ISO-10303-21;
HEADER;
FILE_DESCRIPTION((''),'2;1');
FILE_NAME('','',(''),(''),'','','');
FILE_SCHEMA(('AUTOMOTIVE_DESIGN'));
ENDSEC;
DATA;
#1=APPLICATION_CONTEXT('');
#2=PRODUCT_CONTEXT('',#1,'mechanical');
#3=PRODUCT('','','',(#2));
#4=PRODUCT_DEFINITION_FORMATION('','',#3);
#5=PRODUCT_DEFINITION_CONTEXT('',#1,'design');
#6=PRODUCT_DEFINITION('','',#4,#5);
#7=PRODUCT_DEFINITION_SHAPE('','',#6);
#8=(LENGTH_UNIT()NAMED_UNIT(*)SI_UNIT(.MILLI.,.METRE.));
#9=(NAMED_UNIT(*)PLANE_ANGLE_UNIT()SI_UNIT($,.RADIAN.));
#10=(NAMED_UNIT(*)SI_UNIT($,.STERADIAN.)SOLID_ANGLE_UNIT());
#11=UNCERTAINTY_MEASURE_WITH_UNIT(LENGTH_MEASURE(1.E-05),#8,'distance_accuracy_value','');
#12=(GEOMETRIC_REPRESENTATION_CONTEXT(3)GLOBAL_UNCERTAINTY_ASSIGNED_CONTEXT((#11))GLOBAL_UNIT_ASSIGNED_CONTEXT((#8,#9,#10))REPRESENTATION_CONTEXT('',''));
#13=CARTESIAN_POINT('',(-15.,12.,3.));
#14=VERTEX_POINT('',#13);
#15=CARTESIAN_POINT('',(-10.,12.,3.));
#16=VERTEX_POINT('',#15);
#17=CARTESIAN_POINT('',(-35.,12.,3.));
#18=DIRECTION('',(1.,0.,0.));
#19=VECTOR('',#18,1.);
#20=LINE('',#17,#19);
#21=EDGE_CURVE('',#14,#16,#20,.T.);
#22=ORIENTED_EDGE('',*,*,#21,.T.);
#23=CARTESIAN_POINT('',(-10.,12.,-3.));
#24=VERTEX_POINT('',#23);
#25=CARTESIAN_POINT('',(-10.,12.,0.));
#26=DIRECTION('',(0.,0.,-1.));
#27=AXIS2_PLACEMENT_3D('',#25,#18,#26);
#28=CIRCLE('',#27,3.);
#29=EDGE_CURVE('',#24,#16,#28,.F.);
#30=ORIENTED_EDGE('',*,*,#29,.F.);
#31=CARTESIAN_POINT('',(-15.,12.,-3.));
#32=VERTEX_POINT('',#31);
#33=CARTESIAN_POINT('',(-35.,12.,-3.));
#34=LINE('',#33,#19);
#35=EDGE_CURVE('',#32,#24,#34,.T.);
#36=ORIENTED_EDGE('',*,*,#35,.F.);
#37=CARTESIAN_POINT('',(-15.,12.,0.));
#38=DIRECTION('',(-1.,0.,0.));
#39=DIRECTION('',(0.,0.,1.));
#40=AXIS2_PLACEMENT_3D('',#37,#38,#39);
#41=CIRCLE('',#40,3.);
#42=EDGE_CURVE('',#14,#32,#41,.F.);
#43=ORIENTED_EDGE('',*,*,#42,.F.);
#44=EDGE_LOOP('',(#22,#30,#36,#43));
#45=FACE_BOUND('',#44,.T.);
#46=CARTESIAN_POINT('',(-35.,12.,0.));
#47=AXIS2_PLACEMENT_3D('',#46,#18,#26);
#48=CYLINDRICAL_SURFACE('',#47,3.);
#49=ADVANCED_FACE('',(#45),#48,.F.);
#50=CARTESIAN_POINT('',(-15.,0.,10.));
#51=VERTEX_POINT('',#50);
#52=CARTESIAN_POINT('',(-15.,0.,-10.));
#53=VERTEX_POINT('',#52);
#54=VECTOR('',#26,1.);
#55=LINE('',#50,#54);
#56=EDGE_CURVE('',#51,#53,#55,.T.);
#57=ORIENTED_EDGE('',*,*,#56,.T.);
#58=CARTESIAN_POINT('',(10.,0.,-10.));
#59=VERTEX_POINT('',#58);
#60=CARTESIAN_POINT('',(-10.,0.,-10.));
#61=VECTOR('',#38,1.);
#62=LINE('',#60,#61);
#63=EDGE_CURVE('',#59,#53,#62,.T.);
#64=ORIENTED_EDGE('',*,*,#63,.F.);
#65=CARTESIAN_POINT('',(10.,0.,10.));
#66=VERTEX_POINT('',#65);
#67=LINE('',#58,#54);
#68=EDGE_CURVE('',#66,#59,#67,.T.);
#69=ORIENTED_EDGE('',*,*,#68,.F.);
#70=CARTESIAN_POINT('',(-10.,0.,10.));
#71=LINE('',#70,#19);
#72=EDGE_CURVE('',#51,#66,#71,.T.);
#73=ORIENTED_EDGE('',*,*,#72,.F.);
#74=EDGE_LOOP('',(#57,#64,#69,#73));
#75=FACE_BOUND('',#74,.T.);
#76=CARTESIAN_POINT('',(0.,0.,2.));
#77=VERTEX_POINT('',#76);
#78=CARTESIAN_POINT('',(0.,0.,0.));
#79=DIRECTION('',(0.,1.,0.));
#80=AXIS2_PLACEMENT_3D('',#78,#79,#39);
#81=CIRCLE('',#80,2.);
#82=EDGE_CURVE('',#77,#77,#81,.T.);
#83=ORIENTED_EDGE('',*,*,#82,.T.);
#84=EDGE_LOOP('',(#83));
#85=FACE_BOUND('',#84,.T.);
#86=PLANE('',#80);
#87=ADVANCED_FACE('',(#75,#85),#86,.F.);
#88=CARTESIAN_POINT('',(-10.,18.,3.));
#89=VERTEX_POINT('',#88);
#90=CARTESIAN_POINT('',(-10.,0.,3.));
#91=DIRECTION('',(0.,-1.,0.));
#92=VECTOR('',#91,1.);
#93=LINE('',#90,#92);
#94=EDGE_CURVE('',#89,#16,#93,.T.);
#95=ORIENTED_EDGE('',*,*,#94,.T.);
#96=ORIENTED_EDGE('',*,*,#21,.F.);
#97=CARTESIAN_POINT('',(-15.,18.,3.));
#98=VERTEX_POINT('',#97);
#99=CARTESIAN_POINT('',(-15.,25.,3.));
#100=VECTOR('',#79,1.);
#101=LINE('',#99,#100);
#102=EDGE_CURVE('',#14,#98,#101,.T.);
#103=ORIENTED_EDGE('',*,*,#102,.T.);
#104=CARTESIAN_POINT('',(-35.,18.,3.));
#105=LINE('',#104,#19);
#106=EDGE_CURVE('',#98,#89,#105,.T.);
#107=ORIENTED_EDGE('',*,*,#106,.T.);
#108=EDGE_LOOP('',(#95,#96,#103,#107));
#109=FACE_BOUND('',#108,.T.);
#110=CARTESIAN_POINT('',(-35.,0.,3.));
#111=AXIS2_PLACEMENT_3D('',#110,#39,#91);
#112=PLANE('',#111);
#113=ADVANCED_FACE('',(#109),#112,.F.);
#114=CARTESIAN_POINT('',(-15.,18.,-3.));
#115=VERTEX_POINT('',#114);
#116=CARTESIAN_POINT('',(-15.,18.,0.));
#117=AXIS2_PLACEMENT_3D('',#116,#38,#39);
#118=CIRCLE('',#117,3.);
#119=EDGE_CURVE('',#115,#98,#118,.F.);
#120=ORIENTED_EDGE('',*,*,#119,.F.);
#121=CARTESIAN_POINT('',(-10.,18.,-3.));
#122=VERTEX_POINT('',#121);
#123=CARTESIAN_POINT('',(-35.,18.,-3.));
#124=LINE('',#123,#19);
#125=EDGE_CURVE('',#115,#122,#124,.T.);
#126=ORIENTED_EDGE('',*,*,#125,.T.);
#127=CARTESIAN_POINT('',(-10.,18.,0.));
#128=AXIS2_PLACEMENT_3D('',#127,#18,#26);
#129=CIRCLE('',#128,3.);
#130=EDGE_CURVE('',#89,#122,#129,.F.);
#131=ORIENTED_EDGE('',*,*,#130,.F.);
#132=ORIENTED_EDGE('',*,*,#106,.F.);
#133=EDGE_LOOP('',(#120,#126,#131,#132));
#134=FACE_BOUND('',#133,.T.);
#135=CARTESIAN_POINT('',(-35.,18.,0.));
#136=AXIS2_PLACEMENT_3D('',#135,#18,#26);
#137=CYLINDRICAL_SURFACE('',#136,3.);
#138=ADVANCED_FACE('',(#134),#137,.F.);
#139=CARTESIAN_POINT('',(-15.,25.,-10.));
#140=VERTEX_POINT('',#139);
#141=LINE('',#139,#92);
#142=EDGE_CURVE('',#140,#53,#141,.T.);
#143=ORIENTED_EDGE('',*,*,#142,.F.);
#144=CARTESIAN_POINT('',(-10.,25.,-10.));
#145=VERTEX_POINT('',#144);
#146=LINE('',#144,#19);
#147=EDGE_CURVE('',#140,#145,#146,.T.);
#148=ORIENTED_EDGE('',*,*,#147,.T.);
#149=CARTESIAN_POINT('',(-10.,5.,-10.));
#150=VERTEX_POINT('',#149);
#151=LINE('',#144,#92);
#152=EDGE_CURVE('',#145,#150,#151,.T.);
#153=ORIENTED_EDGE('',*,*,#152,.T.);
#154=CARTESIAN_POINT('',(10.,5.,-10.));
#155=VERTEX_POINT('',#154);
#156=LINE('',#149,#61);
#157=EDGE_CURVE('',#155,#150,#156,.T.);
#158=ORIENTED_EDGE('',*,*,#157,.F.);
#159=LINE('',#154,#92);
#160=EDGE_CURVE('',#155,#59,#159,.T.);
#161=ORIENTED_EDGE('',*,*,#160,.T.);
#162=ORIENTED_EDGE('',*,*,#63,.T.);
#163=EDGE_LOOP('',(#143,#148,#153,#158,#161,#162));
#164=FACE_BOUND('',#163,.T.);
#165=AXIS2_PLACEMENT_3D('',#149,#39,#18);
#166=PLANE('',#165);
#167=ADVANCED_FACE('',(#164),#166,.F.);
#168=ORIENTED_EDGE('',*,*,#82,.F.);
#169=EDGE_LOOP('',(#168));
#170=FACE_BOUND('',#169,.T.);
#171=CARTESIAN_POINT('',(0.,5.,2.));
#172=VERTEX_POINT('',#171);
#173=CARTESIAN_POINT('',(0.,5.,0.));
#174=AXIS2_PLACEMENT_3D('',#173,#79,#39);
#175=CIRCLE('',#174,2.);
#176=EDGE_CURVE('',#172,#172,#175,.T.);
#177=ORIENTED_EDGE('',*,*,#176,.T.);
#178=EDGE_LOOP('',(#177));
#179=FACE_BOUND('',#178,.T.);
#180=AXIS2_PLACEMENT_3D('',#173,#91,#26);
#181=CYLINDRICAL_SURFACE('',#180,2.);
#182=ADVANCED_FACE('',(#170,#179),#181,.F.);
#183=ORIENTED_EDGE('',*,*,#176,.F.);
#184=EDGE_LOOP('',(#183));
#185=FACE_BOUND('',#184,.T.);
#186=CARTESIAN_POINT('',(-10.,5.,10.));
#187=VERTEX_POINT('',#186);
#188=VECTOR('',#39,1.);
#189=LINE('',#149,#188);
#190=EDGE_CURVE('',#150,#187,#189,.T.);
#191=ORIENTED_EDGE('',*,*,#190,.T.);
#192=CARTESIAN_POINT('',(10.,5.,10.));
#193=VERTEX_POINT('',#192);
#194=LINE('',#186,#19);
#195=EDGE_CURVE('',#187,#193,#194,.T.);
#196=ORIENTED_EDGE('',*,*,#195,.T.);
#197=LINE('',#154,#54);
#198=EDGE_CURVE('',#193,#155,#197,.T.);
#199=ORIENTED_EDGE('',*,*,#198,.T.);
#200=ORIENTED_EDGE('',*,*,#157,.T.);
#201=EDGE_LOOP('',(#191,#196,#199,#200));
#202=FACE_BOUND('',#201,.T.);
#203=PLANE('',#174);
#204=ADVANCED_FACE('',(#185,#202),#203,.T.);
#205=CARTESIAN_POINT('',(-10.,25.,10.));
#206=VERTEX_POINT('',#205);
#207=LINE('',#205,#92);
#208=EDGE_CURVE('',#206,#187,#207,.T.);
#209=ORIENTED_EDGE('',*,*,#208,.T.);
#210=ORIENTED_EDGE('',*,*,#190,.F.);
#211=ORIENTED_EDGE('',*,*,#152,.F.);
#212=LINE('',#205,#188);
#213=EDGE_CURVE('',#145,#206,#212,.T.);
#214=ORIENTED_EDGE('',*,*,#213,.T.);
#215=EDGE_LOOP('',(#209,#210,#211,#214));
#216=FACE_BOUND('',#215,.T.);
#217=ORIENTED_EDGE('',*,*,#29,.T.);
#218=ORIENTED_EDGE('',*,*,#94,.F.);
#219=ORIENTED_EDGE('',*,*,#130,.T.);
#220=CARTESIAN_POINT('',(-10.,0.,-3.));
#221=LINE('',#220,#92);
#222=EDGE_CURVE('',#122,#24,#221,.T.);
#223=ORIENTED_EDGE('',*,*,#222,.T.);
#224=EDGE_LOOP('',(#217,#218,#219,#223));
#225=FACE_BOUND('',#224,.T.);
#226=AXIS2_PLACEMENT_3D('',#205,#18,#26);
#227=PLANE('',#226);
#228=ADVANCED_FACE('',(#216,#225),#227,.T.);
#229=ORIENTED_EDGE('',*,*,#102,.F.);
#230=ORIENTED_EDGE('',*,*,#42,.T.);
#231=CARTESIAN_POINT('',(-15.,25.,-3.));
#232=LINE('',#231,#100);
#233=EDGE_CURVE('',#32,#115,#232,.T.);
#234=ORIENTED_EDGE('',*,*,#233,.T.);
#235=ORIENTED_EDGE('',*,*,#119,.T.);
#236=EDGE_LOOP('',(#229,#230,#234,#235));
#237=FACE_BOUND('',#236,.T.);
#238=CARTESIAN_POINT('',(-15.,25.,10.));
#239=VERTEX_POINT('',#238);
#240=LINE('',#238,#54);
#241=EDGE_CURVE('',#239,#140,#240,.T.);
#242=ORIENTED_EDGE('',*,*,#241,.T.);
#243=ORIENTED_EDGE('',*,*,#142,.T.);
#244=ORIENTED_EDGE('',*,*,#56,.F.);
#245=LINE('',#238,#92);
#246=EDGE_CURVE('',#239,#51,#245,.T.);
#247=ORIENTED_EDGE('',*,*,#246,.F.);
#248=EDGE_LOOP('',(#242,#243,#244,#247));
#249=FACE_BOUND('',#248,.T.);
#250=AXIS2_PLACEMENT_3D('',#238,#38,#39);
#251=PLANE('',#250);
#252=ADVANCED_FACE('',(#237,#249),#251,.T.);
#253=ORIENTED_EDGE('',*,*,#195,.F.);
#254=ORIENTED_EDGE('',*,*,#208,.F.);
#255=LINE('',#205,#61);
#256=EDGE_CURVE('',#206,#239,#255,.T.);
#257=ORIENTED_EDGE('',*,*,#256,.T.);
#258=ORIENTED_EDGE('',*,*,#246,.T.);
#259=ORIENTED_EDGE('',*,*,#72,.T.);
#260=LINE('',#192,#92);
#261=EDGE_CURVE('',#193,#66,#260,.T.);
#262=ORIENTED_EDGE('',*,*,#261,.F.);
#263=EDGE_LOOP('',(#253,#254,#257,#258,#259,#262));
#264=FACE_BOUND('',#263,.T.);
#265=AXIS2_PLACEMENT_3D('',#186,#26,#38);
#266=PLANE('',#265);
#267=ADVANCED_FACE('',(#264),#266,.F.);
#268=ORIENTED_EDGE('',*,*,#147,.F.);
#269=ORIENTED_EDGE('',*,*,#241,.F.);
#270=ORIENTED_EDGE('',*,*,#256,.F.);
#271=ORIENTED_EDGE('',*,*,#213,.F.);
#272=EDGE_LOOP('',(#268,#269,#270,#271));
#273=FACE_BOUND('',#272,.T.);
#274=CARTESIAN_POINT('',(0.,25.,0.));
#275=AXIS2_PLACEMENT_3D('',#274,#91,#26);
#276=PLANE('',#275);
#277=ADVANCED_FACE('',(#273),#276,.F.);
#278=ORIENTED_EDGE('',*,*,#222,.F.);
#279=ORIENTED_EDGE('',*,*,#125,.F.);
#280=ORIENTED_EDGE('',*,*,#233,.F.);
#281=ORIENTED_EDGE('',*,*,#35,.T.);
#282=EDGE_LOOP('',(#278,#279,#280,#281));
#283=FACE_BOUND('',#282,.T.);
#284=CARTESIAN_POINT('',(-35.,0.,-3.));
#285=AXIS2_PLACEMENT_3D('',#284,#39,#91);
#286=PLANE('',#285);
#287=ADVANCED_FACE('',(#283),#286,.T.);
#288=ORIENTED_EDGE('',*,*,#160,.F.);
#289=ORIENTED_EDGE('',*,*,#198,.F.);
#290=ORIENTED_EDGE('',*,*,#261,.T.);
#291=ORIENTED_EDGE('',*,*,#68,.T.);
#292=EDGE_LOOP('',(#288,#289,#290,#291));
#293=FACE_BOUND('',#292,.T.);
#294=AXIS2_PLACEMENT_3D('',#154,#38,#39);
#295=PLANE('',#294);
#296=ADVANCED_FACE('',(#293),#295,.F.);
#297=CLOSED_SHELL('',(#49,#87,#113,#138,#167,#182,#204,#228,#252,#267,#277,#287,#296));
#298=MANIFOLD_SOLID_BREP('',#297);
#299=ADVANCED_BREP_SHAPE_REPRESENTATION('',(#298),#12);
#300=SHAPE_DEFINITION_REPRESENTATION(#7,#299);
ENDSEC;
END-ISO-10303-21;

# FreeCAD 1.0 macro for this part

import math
import FreeCAD as App
import Part
import Sketcher

V = App.Vector
Q = App.Units.Quantity


def add_polygon(sketch, points):
    """Adds a closed chain of lines whose ends are joined by coincident constraints."""
    first, n = sketch.GeometryCount, len(points)
    for a, b in zip(points, points[1:] + points[:1]):
        sketch.addGeometry(Part.LineSegment(App.Vector(*a, 0), App.Vector(*b, 0)), False)
    for i in range(n):
        sketch.addConstraint(Sketcher.Constraint("Coincident", first + i, 2, first + (i + 1) % n, 1))

doc = App.newDocument("Part")
body = doc.addObject("PartDesign::Body", "Body")

sketch1 = doc.addObject("Sketcher::SketchObject", "Sketch")
body.addObject(sketch1)
sketch1.AttachmentSupport = (doc.XZ_Plane, [""])
sketch1.MapMode = "FlatFace"
add_polygon(sketch1, [(-10, -10), (-10, 10), (10, 10), (10, -10)])
sketch1.addGeometry(Part.Circle(V(0, 0, 0), V(0, 0, 1), 2), False)
sketch1.addConstraint([
    Sketcher.Constraint("Vertical", 0),
    Sketcher.Constraint("Horizontal", 1),
    Sketcher.Constraint("Vertical", 2),
    Sketcher.Constraint("Horizontal", 3),
    Sketcher.Constraint("Coincident", 4, 3, -1, 1),
    Sketcher.Constraint("Symmetric", 0, 2, 2, 2, -1, 1),
    Sketcher.Constraint("Equal", 3, 0),
    Sketcher.Constraint("Diameter", 4, Q("4 mm")),
    Sketcher.Constraint("DistanceX", 1, 1, 1, 2, Q("20 mm")),
])
pad1 = doc.addObject("PartDesign::Pad", "Pad")
body.addObject(pad1)
pad1.Profile = sketch1
pad1.Length = 5
pad1.Reversed = True

sketch2 = doc.addObject("Sketcher::SketchObject", "Sketch001")
body.addObject(sketch2)
sketch2.AttachmentSupport = (doc.XZ_Plane, [""])
sketch2.MapMode = "FlatFace"
add_polygon(sketch2, [(-15, 10), (-15, -10), (-10, -10), (-10, 10)])
sketch2.addConstraint([
    Sketcher.Constraint("Vertical", 0),
    Sketcher.Constraint("Horizontal", 1),
    Sketcher.Constraint("Vertical", 2),
    Sketcher.Constraint("Horizontal", 3),
    Sketcher.Constraint("DistanceX", 1, 1, 1, 2, Q("5 mm")),
    Sketcher.Constraint("DistanceY", 0, 2, 0, 1, Q("20 mm")),
    Sketcher.Constraint("DistanceX", 0, 2, -1, 1, Q("15 mm")),
    Sketcher.Constraint("DistanceY", 0, 2, -1, 1, Q("10 mm")),
])
pad2 = doc.addObject("PartDesign::Pad", "Pad001")
body.addObject(pad2)
pad2.Profile = sketch2
pad2.Length = 25
pad2.Reversed = True

sketch3 = doc.addObject("Sketcher::SketchObject", "Sketch002")
body.addObject(sketch3)
sketch3.AttachmentSupport = (doc.YZ_Plane, [""])
sketch3.MapMode = "FlatFace"
sketch3.AttachmentOffset = App.Placement(V(0, 0, -10), App.Rotation())
sketch3.addGeometry([
    Part.ArcOfCircle(Part.Circle(V(18, 0, 0), V(0, 0, 1), 3), math.radians(-90), math.radians(90)),
    Part.LineSegment(V(18, 3, 0), V(12, 3, 0)),
    Part.ArcOfCircle(Part.Circle(V(12, 0, 0), V(0, 0, 1), 3), math.radians(90), math.radians(270)),
    Part.LineSegment(V(12, -3, 0), V(18, -3, 0)),
], False)
sketch3.addConstraint([
    Sketcher.Constraint("Tangent", 0, 2, 1, 1),
    Sketcher.Constraint("Tangent", 1, 2, 2, 1),
    Sketcher.Constraint("Tangent", 2, 2, 3, 1),
    Sketcher.Constraint("Tangent", 3, 2, 0, 1),
    Sketcher.Constraint("Horizontal", 1),
    Sketcher.Constraint("Horizontal", 3),
    Sketcher.Constraint("PointOnObject", 0, 3, -1),
    Sketcher.Constraint("Radius", 0, Q("3 mm")),
    Sketcher.Constraint("DistanceX", 1, 2, 1, 1, Q("6 mm")),
    Sketcher.Constraint("DistanceX", -1, 1, 0, 3, Q("18 mm")),
])
pocket1 = doc.addObject("PartDesign::Pocket", "Pocket")
body.addObject(pocket1)
pocket1.Profile = sketch3
pocket1.Length = 25

doc.recompute()
